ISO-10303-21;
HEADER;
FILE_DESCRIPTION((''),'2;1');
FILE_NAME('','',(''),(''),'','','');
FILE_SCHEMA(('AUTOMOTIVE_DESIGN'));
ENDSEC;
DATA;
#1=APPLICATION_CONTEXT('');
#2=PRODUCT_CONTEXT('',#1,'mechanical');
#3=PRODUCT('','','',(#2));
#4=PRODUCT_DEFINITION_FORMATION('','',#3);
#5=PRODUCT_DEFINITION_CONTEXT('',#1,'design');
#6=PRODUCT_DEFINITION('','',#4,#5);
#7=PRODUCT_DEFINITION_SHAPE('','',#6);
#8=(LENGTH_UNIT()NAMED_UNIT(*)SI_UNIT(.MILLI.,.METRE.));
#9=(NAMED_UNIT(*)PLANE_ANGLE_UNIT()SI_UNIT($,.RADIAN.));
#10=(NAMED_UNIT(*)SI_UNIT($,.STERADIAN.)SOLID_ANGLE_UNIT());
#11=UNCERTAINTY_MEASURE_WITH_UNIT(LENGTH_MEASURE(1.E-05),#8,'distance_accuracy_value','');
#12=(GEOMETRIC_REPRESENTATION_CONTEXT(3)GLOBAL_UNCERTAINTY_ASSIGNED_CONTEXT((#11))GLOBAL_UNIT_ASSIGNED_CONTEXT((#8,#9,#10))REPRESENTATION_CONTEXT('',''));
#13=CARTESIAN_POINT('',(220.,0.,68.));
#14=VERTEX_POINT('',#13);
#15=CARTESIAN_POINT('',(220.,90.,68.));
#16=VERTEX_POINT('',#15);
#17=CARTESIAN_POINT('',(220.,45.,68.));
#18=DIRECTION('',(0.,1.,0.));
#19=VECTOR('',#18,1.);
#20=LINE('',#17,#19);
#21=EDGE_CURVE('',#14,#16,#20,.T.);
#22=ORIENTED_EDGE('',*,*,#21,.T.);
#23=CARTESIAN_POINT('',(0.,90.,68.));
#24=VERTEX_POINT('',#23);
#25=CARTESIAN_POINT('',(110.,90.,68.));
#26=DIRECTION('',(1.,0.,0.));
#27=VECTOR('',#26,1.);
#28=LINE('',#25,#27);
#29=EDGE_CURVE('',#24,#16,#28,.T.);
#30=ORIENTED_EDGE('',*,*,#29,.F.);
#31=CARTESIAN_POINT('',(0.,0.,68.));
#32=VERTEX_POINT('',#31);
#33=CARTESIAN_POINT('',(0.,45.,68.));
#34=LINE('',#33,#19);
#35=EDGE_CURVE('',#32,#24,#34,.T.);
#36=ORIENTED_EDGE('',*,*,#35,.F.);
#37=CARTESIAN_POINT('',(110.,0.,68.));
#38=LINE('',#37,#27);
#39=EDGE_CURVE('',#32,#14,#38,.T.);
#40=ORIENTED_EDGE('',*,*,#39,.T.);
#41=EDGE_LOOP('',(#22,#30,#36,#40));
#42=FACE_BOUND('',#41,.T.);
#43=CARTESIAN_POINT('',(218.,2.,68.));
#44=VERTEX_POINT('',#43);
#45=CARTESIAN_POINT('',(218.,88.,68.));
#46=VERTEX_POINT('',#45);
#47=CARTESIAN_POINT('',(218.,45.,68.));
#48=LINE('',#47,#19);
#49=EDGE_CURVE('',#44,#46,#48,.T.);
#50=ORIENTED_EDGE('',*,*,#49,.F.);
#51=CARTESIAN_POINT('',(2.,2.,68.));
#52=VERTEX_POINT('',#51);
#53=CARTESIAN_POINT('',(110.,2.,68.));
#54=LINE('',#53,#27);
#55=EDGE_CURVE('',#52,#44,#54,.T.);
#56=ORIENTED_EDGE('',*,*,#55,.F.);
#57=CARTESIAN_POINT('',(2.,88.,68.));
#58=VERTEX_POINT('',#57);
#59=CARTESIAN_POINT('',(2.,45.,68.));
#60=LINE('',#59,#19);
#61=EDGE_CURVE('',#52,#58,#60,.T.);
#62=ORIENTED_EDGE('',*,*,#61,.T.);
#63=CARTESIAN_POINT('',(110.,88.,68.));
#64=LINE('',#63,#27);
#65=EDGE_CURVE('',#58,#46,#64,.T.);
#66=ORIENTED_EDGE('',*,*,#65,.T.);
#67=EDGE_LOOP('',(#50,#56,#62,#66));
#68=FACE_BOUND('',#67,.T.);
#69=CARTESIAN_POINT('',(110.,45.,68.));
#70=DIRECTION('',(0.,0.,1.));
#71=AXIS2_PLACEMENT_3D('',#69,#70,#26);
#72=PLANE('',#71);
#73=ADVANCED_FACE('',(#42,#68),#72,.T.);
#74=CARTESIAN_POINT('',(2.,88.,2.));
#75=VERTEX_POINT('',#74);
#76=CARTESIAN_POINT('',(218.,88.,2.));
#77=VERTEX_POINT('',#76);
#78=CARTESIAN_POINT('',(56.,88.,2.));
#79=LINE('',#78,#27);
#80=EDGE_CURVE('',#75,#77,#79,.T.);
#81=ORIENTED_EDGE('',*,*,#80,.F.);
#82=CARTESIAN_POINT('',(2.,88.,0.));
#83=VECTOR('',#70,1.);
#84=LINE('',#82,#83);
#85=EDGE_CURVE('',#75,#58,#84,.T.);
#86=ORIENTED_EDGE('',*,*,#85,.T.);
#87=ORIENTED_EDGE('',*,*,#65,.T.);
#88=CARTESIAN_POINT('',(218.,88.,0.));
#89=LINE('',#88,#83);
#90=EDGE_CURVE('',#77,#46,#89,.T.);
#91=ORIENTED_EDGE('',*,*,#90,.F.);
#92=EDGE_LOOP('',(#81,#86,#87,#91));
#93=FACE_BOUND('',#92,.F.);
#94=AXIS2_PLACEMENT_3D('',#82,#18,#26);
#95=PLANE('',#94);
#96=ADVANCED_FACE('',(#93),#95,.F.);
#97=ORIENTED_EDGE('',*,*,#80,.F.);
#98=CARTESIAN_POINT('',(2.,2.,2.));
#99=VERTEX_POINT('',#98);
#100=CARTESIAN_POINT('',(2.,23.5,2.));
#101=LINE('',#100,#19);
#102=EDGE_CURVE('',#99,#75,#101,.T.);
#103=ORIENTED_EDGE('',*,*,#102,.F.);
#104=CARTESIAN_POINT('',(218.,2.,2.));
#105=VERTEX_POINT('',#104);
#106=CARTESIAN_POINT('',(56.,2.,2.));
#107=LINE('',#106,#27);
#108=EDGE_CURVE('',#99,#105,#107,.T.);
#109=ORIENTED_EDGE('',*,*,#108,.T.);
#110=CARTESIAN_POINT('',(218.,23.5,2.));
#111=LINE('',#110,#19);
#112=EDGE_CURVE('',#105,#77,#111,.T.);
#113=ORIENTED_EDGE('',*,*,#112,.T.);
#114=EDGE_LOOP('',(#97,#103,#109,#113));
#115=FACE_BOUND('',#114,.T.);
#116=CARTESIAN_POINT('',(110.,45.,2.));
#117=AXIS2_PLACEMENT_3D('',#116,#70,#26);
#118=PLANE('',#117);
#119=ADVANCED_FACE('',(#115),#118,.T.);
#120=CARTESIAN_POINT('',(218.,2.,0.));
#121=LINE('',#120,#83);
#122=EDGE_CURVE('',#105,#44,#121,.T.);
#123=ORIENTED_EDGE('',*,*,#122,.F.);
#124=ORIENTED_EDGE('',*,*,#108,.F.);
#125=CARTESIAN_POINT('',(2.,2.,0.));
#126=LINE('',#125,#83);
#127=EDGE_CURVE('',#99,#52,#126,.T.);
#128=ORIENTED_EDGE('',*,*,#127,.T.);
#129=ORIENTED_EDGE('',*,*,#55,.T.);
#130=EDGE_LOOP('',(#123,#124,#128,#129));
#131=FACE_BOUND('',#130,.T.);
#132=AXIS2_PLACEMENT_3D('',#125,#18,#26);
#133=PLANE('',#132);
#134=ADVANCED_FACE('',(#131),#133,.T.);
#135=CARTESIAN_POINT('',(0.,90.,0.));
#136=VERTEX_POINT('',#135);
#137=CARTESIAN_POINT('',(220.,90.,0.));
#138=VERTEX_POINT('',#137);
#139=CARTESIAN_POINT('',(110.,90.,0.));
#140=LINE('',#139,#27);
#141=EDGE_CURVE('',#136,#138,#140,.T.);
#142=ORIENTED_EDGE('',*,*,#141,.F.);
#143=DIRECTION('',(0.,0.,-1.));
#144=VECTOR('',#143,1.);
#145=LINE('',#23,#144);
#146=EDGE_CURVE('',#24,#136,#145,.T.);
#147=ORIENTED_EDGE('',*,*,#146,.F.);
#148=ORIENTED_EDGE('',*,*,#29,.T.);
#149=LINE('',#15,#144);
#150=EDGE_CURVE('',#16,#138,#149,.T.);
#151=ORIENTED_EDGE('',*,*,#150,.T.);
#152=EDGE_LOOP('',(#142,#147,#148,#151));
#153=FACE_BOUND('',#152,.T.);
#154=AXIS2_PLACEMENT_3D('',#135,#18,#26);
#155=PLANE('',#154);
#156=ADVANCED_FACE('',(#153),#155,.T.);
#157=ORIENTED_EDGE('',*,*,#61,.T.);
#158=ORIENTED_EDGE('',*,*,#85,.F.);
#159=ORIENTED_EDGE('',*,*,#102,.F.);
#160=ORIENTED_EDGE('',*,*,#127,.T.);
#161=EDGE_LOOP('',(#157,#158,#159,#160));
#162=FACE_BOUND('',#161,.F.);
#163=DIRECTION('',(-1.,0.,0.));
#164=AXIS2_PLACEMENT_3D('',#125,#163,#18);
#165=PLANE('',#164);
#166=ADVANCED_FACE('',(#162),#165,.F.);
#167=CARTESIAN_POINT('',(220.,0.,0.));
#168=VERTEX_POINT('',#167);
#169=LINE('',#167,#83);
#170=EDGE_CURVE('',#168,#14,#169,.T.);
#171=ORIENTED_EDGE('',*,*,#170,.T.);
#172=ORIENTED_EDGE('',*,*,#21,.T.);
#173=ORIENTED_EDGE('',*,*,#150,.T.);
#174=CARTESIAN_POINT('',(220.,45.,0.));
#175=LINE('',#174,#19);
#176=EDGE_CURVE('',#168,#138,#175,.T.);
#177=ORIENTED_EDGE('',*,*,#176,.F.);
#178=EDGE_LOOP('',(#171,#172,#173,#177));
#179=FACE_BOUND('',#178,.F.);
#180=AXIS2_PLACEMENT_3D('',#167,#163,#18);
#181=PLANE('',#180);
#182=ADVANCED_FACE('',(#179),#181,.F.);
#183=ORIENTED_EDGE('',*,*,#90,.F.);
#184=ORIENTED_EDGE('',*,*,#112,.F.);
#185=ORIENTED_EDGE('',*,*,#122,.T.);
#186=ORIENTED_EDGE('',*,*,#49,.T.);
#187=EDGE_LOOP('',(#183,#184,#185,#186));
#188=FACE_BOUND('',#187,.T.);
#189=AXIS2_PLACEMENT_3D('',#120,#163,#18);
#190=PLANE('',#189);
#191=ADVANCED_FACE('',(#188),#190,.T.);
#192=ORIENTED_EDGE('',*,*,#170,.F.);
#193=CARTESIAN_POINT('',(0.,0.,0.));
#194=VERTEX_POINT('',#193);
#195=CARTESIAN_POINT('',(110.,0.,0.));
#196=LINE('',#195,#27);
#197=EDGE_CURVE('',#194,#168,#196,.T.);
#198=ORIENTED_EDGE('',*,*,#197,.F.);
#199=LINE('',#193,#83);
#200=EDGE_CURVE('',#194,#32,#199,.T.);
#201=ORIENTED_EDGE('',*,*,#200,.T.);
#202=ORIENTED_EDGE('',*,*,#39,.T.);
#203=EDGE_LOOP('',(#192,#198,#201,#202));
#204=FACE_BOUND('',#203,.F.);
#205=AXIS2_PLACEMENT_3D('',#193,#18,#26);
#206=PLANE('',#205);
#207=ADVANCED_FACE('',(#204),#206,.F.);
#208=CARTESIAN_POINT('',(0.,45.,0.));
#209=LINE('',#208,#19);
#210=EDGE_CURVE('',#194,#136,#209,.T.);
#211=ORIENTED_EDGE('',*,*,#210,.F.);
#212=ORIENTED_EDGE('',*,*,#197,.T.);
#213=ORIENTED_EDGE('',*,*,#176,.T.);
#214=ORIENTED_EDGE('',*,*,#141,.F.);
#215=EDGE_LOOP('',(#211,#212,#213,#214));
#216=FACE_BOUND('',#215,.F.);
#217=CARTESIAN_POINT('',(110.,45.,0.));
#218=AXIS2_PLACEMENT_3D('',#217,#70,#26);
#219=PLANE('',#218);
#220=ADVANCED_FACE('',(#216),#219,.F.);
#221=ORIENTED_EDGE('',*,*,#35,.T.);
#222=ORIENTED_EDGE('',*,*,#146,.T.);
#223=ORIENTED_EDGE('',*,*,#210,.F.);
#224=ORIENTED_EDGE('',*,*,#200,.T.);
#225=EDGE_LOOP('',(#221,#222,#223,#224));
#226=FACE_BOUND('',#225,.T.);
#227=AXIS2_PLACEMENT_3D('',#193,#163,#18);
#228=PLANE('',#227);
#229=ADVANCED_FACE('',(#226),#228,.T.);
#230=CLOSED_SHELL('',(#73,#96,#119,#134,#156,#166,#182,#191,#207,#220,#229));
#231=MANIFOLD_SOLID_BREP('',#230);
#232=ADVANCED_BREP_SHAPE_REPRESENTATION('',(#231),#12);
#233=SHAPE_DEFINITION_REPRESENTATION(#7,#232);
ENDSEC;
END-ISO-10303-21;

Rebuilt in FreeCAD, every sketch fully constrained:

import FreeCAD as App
import Part
import Sketcher
from FreeCAD import Vector


def add_polygon(sketch, points):
    """Adds a closed chain of lines whose ends are joined by coincident constraints."""
    first, n = sketch.GeometryCount, len(points)
    for a, b in zip(points, points[1:] + points[:1]):
        sketch.addGeometry(Part.LineSegment(App.Vector(*a, 0), App.Vector(*b, 0)), False)
    for i in range(n):
        sketch.addConstraint(Sketcher.Constraint("Coincident", first + i, 2, first + (i + 1) % n, 1))

doc = App.newDocument("Part")
params = doc.addObject("Spreadsheet::Sheet", "Params")
for row, (alias, value) in enumerate([
    ("sketch1_width", "220 mm"),
    ("sketch1_width2", "216 mm"),
    ("sketch1_height", "90 mm"),
    ("sketch1_height2", "86 mm"),
    ("pad1_length", "68 mm"),
    ("sketch2_width", "220 mm"),
    ("sketch2_height", "90 mm"),
    ("pad2_length", "2 mm"),
], start=1):
    params.set(f"A{row}", alias)
    params.set(f"B{row}", "=" + value)
    params.setAlias(f"B{row}", alias)

body = doc.addObject("PartDesign::Body", "Body")

# Sketch on XY plane
sketch1 = doc.addObject("Sketcher::SketchObject", "Sketch")
body.addObject(sketch1)
sketch1.AttachmentSupport = (doc.XY_Plane, [""])
sketch1.MapMode = "FlatFace"
add_polygon(sketch1, [(0, 90), (0, 0), (220, 0), (220, 90)])  # lines 0-3
add_polygon(sketch1, [(218, 2), (2, 2), (2, 88), (218, 88)])  # lines 4-7
sketch1.addConstraint([
    Sketcher.Constraint("Vertical", 0),
    Sketcher.Constraint("Horizontal", 1),
    Sketcher.Constraint("Vertical", 2),
    Sketcher.Constraint("Horizontal", 3),
    Sketcher.Constraint("Horizontal", 4),
    Sketcher.Constraint("Vertical", 5),
    Sketcher.Constraint("Horizontal", 6),
    Sketcher.Constraint("Vertical", 7),
    Sketcher.Constraint("Coincident", 0, 2, -1, 1),
    Sketcher.Constraint("DistanceX", 1, 1, 1, 2, 220.0),
    Sketcher.Constraint("DistanceX", 4, 2, 4, 1, 216.0),
    Sketcher.Constraint("DistanceY", 0, 2, 0, 1, 90.0),
    Sketcher.Constraint("DistanceY", 5, 1, 5, 2, 86.0),
    Sketcher.Constraint("DistanceX", -1, 1, 4, 2, 2.0),
    Sketcher.Constraint("DistanceY", -1, 1, 4, 2, 2.0),
])
sketch1.setExpression("Constraints[17]", "Params.sketch1_width")
sketch1.setExpression("Constraints[18]", "Params.sketch1_width2")
sketch1.setExpression("Constraints[19]", "Params.sketch1_height")
sketch1.setExpression("Constraints[20]", "Params.sketch1_height2")
pad1 = doc.addObject("PartDesign::Pad", "Pad")
body.addObject(pad1)
pad1.Profile = sketch1
pad1.setExpression("Length", "Params.pad1_length")

# Sketch on XY plane
sketch2 = doc.addObject("Sketcher::SketchObject", "Sketch001")
body.addObject(sketch2)
sketch2.AttachmentSupport = (doc.XY_Plane, [""])
sketch2.MapMode = "FlatFace"
add_polygon(sketch2, [(0, 90), (0, 0), (220, 0), (220, 90)])  # lines 0-3
sketch2.addConstraint([
    Sketcher.Constraint("Vertical", 0),
    Sketcher.Constraint("Horizontal", 1),
    Sketcher.Constraint("Vertical", 2),
    Sketcher.Constraint("Horizontal", 3),
    Sketcher.Constraint("Coincident", 0, 2, -1, 1),
    Sketcher.Constraint("DistanceX", 1, 1, 1, 2, 220.0),
    Sketcher.Constraint("DistanceY", 0, 2, 0, 1, 90.0),
])
sketch2.setExpression("Constraints[9]", "Params.sketch2_width")
sketch2.setExpression("Constraints[10]", "Params.sketch2_height")
pad2 = doc.addObject("PartDesign::Pad", "Pad001")
body.addObject(pad2)
pad2.Profile = sketch2
pad2.setExpression("Length", "Params.pad2_length")

doc.recompute()
